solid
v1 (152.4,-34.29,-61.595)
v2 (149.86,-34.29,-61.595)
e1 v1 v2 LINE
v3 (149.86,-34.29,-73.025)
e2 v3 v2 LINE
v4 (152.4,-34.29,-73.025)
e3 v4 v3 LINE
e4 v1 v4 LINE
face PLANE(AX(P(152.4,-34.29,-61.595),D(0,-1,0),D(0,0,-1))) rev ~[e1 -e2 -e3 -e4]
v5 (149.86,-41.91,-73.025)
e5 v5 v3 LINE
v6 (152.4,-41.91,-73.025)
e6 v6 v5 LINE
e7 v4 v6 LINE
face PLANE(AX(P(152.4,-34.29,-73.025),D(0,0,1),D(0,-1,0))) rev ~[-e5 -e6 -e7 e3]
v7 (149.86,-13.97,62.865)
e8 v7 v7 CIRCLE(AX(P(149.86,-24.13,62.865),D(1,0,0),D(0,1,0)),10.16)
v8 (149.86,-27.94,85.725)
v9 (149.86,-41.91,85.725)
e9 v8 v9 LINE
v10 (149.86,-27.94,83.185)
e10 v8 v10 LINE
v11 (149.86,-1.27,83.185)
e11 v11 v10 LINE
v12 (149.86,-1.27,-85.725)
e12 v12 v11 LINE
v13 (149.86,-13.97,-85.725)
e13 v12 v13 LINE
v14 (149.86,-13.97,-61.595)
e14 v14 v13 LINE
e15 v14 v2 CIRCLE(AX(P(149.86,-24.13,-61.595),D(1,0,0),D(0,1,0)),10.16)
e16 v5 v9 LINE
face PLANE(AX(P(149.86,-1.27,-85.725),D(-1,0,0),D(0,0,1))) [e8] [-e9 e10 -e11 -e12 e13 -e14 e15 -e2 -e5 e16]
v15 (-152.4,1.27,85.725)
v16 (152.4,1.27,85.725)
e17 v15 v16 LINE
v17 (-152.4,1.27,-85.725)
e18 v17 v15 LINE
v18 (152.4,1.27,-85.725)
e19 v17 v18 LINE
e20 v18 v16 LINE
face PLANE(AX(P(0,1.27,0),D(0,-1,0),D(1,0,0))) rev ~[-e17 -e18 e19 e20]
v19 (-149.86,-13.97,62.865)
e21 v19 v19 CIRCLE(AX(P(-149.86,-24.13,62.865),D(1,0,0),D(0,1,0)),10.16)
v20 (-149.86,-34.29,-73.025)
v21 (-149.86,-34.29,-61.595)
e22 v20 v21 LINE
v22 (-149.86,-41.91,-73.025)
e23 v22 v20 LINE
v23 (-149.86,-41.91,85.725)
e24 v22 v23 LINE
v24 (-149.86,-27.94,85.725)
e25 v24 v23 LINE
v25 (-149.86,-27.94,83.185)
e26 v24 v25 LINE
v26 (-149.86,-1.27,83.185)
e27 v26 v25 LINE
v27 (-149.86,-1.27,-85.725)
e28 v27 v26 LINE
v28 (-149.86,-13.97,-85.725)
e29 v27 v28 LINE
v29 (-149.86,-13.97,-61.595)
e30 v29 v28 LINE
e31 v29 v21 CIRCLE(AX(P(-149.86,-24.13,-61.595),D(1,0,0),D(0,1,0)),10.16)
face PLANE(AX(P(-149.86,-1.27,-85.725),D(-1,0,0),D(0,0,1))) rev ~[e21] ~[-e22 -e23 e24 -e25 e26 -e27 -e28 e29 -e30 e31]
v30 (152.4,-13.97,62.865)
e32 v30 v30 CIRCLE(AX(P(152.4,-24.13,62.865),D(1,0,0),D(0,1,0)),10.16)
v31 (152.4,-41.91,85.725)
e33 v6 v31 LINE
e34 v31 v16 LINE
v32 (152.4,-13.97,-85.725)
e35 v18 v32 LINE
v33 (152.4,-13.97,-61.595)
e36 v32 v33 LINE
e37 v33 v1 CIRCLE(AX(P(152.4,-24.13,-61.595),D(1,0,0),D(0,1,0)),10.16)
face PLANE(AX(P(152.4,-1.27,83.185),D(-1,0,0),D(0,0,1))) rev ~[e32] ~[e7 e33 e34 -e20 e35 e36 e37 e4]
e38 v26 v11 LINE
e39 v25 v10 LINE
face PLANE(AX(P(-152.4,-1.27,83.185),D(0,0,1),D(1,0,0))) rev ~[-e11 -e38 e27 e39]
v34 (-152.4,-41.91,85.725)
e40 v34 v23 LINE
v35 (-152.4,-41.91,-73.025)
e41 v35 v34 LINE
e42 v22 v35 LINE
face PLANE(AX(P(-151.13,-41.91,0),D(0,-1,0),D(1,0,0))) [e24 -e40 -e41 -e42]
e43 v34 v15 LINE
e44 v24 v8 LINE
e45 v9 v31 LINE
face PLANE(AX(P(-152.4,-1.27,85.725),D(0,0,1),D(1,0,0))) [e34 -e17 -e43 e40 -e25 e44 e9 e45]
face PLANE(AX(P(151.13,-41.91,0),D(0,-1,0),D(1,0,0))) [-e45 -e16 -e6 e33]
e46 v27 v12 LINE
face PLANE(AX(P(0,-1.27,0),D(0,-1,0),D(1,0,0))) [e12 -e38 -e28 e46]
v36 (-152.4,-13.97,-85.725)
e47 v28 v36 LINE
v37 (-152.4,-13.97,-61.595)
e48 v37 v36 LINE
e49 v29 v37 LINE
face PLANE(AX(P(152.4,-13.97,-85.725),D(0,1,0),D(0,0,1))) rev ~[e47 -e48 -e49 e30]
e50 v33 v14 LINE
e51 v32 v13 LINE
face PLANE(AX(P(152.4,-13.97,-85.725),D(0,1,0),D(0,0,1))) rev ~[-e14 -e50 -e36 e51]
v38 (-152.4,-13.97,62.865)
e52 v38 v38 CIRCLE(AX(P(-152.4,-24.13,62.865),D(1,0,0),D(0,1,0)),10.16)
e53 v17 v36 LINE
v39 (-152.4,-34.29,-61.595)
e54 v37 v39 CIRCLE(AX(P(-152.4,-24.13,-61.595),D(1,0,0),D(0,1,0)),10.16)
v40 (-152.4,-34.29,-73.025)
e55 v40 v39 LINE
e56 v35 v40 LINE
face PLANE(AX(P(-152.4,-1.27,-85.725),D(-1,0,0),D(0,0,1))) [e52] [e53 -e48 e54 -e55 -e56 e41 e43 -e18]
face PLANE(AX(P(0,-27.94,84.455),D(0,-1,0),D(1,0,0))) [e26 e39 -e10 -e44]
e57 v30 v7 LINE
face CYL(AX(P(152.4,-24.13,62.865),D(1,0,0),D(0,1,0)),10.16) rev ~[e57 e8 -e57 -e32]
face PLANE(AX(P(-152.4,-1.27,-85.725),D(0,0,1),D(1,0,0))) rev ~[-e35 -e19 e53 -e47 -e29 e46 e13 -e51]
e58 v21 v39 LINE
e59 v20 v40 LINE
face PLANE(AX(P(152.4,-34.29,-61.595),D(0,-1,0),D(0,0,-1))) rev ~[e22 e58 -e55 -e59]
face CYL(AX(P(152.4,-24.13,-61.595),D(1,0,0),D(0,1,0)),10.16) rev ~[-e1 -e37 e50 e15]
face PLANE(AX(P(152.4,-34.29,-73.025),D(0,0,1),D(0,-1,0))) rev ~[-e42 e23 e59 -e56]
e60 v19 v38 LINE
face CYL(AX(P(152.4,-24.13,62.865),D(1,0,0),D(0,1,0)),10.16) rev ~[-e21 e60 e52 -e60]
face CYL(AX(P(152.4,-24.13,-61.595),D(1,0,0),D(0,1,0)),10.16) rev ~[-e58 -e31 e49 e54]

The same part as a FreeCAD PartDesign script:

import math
import FreeCAD as App
import Part
import Sketcher
from FreeCAD import Vector
Q = App.Units.Quantity


def add_polygon(sketch, points):
    """Adds a closed chain of lines whose ends are joined by coincident constraints."""
    first, n = sketch.GeometryCount, len(points)
    for a, b in zip(points, points[1:] + points[:1]):
        sketch.addGeometry(Part.LineSegment(App.Vector(*a, 0), App.Vector(*b, 0)), False)
    for i in range(n):
        sketch.addConstraint(Sketcher.Constraint("Coincident", first + i, 2, first + (i + 1) % n, 1))

doc = App.newDocument("Part")
params = doc.addObject("Spreadsheet::Sheet", "Params")
for row, (alias, value) in enumerate([
    ("sketch1_width", "12 in"),
    ("sketch1_height", "6.75 in"),
    ("pad1_length", "0.1 in"),
    ("sketch2_width", "12 in"),
    ("sketch2_height", "0.1 in"),
    ("pad2_length", "1.05 in"),
    ("sketch3_width", "0.1 in"),
    ("sketch3_height", "6.75 in"),
    ("pad3_length", "1.6 in"),
    ("sketch4_diameter", "0.8 in"),
    ("sketch4_width", "0.3 in"),
    ("sketch4_height", "0.5 in"),
    ("sketch4_height2", "0.95 in"),
], start=1):
    params.set(f"A{row}", alias)
    params.set(f"B{row}", "=" + value)
    params.setAlias(f"B{row}", alias)

body = doc.addObject("PartDesign::Body", "Body")

# Sketch on XZ plane
sketch1 = doc.addObject("Sketcher::SketchObject", "Sketch")
body.addObject(sketch1)
sketch1.AttachmentSupport = (doc.XZ_Plane, [""])
sketch1.MapMode = "FlatFace"
add_polygon(sketch1, [(-152.4, 85.725), (-152.4, -85.725), (152.4, -85.725), (152.4, 85.725)])  # lines 0-3
sketch1.addConstraint([
    Sketcher.Constraint("Vertical", 0),
    Sketcher.Constraint("Horizontal", 1),
    Sketcher.Constraint("Vertical", 2),
    Sketcher.Constraint("Horizontal", 3),
    Sketcher.Constraint("Symmetric", 0, 2, 2, 2, -1, 1),
    Sketcher.Constraint("DistanceX", 1, 1, 1, 2, Q("12 in")),
    Sketcher.Constraint("DistanceY", 0, 2, 0, 1, Q("6.75 in")),
])
sketch1.setExpression("Constraints[9]", "Params.sketch1_width")
sketch1.setExpression("Constraints[10]", "Params.sketch1_height")
pad1 = doc.addObject("PartDesign::Pad", "Pad")
body.addObject(pad1)
pad1.Profile = sketch1
pad1.setExpression("Length", "Params.pad1_length")
pad1.Midplane = True

# Sketch on XZ plane
sketch2 = doc.addObject("Sketcher::SketchObject", "Sketch001")
body.addObject(sketch2)
sketch2.AttachmentSupport = (doc.XZ_Plane, [""])
sketch2.MapMode = "FlatFace"
sketch2.AttachmentOffset = App.Placement(Vector(0, 0, 0.05 * 25.4), App.Rotation())
add_polygon(sketch2, [(-152.4, 85.725), (-152.4, 83.185), (152.4, 83.185), (152.4, 85.725)])  # lines 0-3
sketch2.addConstraint([
    Sketcher.Constraint("Vertical", 0),
    Sketcher.Constraint("Horizontal", 1),
    Sketcher.Constraint("Vertical", 2),
    Sketcher.Constraint("Horizontal", 3),
    Sketcher.Constraint("DistanceX", 1, 1, 1, 2, Q("12 in")),
    Sketcher.Constraint("DistanceY", 0, 2, 0, 1, Q("0.1 in")),
    Sketcher.Constraint("DistanceX", 0, 2, -1, 1, Q("6 in")),
    Sketcher.Constraint("DistanceY", -1, 1, 0, 2, Q("3.275 in")),
])
sketch2.setExpression("Constraints[8]", "Params.sketch2_width")
sketch2.setExpression("Constraints[9]", "Params.sketch2_height")
pad2 = doc.addObject("PartDesign::Pad", "Pad001")
body.addObject(pad2)
pad2.Profile = sketch2
pad2.setExpression("Length", "Params.pad2_length")

# Sketch on XZ plane
sketch3 = doc.addObject("Sketcher::SketchObject", "Sketch002")
body.addObject(sketch3)
sketch3.AttachmentSupport = (doc.XZ_Plane, [""])
sketch3.MapMode = "FlatFace"
sketch3.AttachmentOffset = App.Placement(Vector(0, 0, 0.05 * 25.4), App.Rotation())
add_polygon(sketch3, [(-152.4, 85.725), (-152.4, -85.725), (-149.86, -85.725), (-149.86, 85.725)])  # lines 0-3
add_polygon(sketch3, [(149.86, 85.725), (149.86, -85.725), (152.4, -85.725), (152.4, 85.725)])  # lines 4-7
sketch3.addConstraint([
    Sketcher.Constraint("Vertical", 0),
    Sketcher.Constraint("Horizontal", 1),
    Sketcher.Constraint("Vertical", 2),
    Sketcher.Constraint("Horizontal", 3),
    Sketcher.Constraint("Vertical", 4),
    Sketcher.Constraint("Horizontal", 5),
    Sketcher.Constraint("Vertical", 6),
    Sketcher.Constraint("Horizontal", 7),
    Sketcher.Constraint("Symmetric", 2, 2, 4, 2, -1, 1),
    Sketcher.Constraint("Symmetric", 0, 2, 6, 2, -1, 1),
    Sketcher.Constraint("Horizontal", 1, 2, 4, 2),
    Sketcher.Constraint("DistanceX", 1, 1, 1, 2, Q("0.1 in")),
    Sketcher.Constraint("DistanceX", 0, 2, -1, 1, Q("6 in")),
    Sketcher.Constraint("DistanceY", 0, 2, 0, 1, Q("6.75 in")),
])
sketch3.setExpression("Constraints[19]", "Params.sketch3_width")
sketch3.setExpression("Constraints[21]", "Params.sketch3_height")
pad3 = doc.addObject("PartDesign::Pad", "Pad002")
body.addObject(pad3)
pad3.Profile = sketch3
pad3.setExpression("Length", "Params.pad3_length")

# Sketch on YZ plane
sketch4 = doc.addObject("Sketcher::SketchObject", "Sketch003")
body.addObject(sketch4)
sketch4.AttachmentSupport = (doc.YZ_Plane, [""])
sketch4.MapMode = "FlatFace"
sketch4.AttachmentOffset = App.Placement(Vector(0, 0, 6 * 25.4), App.Rotation())
sketch4.addGeometry([
    Part.Circle(Vector(-24.13, 62.865, 0), Vector(0, 0, 1), 10.16),  # 0
    Part.LineSegment(Vector(-34.29, -73.025, 0), Vector(-41.91, -73.025, 0)),  # 1
    Part.LineSegment(Vector(-41.91, -73.025, 0), Vector(-41.91, -85.725, 0)),  # 2
    Part.LineSegment(Vector(-41.91, -85.725, 0), Vector(-13.97, -85.725, 0)),  # 3
    Part.LineSegment(Vector(-13.97, -85.725, 0), Vector(-13.97, -61.595, 0)),  # 4
    Part.ArcOfCircle(Part.Circle(Vector(-24.13, -61.595, 0), Vector(0, 0, 1), 10.16), math.radians(0), math.radians(180)),  # 5
    Part.LineSegment(Vector(-34.29, -61.595, 0), Vector(-34.29, -73.025, 0)),  # 6
], False)
sketch4.addConstraint([
    Sketcher.Constraint("Coincident", 1, 2, 2, 1),
    Sketcher.Constraint("Coincident", 2, 2, 3, 1),
    Sketcher.Constraint("Coincident", 3, 2, 4, 1),
    Sketcher.Constraint("Tangent", 4, 2, 5, 1),
    Sketcher.Constraint("Tangent", 5, 2, 6, 1),
    Sketcher.Constraint("Coincident", 6, 2, 1, 1),
    Sketcher.Constraint("Horizontal", 1),
    Sketcher.Constraint("Vertical", 2),
    Sketcher.Constraint("Horizontal", 3),
    Sketcher.Constraint("Vertical", 4),
    Sketcher.Constraint("Vertical", 6),
    Sketcher.Constraint("Equal", 0, 5),
    Sketcher.Constraint("Vertical", 0, 3, 5, 3),
    Sketcher.Constraint("Diameter", 0, Q("0.8 in")),
    Sketcher.Constraint("DistanceX", 1, 2, 1, 1, Q("0.3 in")),
    Sketcher.Constraint("DistanceY", 2, 2, 2, 1, Q("0.5 in")),
    Sketcher.Constraint("DistanceY", 4, 1, 4, 2, Q("0.95 in")),
    Sketcher.Constraint("DistanceY", 5, 3, 0, 3, Q("4.9 in")),
    Sketcher.Constraint("DistanceX", 0, 3, -1, 1, Q("0.95 in")),
    Sketcher.Constraint("DistanceY", -1, 1, 0, 3, Q("2.475 in")),
])
sketch4.setExpression("Constraints[13]", "Params.sketch4_diameter")
sketch4.setExpression("Constraints[14]", "Params.sketch4_width")
sketch4.setExpression("Constraints[15]", "Params.sketch4_height")
sketch4.setExpression("Constraints[16]", "Params.sketch4_height2")
pocket1 = doc.addObject("PartDesign::Pocket", "Pocket")
body.addObject(pocket1)
pocket1.Profile = sketch4
pocket1.Type = "ThroughAll"

doc.recompute()
